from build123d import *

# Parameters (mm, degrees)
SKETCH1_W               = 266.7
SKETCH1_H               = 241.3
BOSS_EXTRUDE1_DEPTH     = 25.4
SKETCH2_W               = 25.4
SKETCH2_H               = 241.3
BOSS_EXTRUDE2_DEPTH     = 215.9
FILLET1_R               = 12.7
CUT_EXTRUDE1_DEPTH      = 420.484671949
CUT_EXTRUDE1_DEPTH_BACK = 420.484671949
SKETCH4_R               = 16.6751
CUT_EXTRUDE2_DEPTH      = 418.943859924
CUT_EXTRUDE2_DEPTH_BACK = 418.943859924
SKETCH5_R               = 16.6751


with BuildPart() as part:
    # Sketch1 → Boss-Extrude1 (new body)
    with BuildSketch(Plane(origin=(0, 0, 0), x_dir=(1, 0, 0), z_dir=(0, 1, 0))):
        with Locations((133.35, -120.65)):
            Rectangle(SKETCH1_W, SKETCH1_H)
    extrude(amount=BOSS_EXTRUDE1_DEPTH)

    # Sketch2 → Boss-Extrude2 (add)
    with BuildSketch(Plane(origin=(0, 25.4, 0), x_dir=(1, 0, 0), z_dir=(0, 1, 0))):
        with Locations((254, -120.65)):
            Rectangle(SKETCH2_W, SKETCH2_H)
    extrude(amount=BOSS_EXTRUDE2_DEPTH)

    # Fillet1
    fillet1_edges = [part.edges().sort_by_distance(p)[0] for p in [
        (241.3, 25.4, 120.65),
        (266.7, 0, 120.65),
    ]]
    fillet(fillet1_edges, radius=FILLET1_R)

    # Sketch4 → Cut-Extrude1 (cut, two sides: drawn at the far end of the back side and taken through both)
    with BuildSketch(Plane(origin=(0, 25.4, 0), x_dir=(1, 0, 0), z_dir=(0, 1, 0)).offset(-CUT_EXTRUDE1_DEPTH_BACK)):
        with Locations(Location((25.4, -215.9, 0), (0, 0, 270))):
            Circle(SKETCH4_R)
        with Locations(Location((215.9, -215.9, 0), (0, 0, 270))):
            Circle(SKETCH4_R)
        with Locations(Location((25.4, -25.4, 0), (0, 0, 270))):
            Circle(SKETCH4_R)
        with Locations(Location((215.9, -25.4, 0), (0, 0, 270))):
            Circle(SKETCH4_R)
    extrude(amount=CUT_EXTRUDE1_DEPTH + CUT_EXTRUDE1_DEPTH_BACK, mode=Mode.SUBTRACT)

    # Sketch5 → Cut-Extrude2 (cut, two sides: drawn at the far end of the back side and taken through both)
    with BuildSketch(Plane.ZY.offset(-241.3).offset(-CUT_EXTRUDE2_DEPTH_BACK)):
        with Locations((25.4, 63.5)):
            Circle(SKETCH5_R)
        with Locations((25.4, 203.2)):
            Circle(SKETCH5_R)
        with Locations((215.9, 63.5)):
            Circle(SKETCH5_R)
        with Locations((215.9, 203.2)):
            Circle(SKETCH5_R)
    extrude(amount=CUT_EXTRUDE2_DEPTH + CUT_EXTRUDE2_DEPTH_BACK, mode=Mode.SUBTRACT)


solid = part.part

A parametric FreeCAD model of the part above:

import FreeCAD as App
import Part
import Sketcher
from FreeCAD import Vector
Q = App.Units.Quantity


def edges_at(feature, points):
    """Names of the edges that pass closest to the given points."""
    edges = feature.Shape.Edges
    near = lambda p: min(range(len(edges)), key=lambda i: edges[i].distToShape(Part.Vertex(*p))[0])
    return sorted({f"Edge{near(p) + 1}" for p in points})


def add_polygon(sketch, points):
    """Adds a closed chain of lines whose ends are joined by coincident constraints."""
    first, n = sketch.GeometryCount, len(points)
    for a, b in zip(points, points[1:] + points[:1]):
        sketch.addGeometry(Part.LineSegment(App.Vector(*a, 0), App.Vector(*b, 0)), False)
    for i in range(n):
        sketch.addConstraint(Sketcher.Constraint("Coincident", first + i, 2, first + (i + 1) % n, 1))

doc = App.newDocument("Part")
body = doc.addObject("PartDesign::Body", "Body")

# Sketch on XZ plane
sketch1 = body.newObject("Sketcher::SketchObject", "Sketch")
sketch1.AttachmentSupport = (doc.getObject("XZ_Plane"), [""])
sketch1.MapMode = "FlatFace"
add_polygon(sketch1, [(0, 0), (0, 241.3), (266.7, 241.3), (266.7, 0)])  # lines 0-3
sketch1.addConstraint([
    Sketcher.Constraint("Vertical", 0),
    Sketcher.Constraint("Horizontal", 1),
    Sketcher.Constraint("Vertical", 2),
    Sketcher.Constraint("Horizontal", 3),
    Sketcher.Constraint("Coincident", 3, 2, -1, 1),
    Sketcher.Constraint("DistanceX", 1, 1, 1, 2, Q("10.5 in")),
    Sketcher.Constraint("DistanceY", 0, 1, 0, 2, Q("9.5 in")),
])
pad1 = body.newObject("PartDesign::Pad", "Pad")
pad1.Profile = sketch1
pad1.Length = Q("1 in")
pad1.Reversed = True

# Sketch on XZ plane
sketch2 = body.newObject("Sketcher::SketchObject", "Sketch001")
sketch2.AttachmentSupport = (doc.getObject("XZ_Plane"), [""])
sketch2.MapMode = "FlatFace"
sketch2.AttachmentOffset = App.Placement(Vector(0, 0, -1 * 25.4), App.Rotation())
add_polygon(sketch2, [(241.3, 0), (241.3, 241.3), (266.7, 241.3), (266.7, 0)])  # lines 0-3
sketch2.addConstraint([
    Sketcher.Constraint("Vertical", 0),
    Sketcher.Constraint("Horizontal", 1),
    Sketcher.Constraint("Vertical", 2),
    Sketcher.Constraint("Horizontal", 3),
    Sketcher.Constraint("PointOnObject", 2, 2, -1),
    Sketcher.Constraint("DistanceX", 1, 1, 1, 2, Q("1 in")),
    Sketcher.Constraint("DistanceY", 0, 1, 0, 2, Q("9.5 in")),
    Sketcher.Constraint("DistanceX", -1, 1, 0, 2, Q("9.5 in")),
])
pad2 = body.newObject("PartDesign::Pad", "Pad001")
pad2.Profile = sketch2
pad2.Length = Q("8.5 in")
pad2.Reversed = True
doc.recompute()

fillet = body.newObject("PartDesign::Fillet", "Fillet")
fillet.Base = (pad2, edges_at(pad2, [(241.3, 25.4, 120.65), (266.7, 0, 120.65)]))
fillet.Radius = Q("0.5 in")

# Sketch on XZ plane
sketch3 = body.newObject("Sketcher::SketchObject", "Sketch002")
sketch3.AttachmentSupport = (doc.getObject("XZ_Plane"), [""])
sketch3.MapMode = "FlatFace"
sketch3.AttachmentOffset = App.Placement(Vector(0, 0, -1 * 25.4), App.Rotation())
sketch3.addGeometry([
    Part.Circle(Vector(25.4, 215.9, 0), Vector(0, 0, 1), 16.6751),
    Part.Circle(Vector(215.9, 215.9, 0), Vector(0, 0, 1), 16.6751),
    Part.Circle(Vector(25.4, 25.4, 0), Vector(0, 0, 1), 16.6751),
    Part.Circle(Vector(215.9, 25.4, 0), Vector(0, 0, 1), 16.6751),
], False)
sketch3.addConstraint([
    Sketcher.Constraint("Equal", 0, 1),
    Sketcher.Constraint("Equal", 1, 2),
    Sketcher.Constraint("Equal", 2, 3),
    Sketcher.Constraint("Horizontal", 0, 3, 1, 3),
    Sketcher.Constraint("Horizontal", 2, 3, 3, 3),
    Sketcher.Constraint("Vertical", 0, 3, 2, 3),
    Sketcher.Constraint("Vertical", 1, 3, 3, 3),
    Sketcher.Constraint("Diameter", 0, Q("1.313 in")),
    Sketcher.Constraint("DistanceX", -1, 1, 0, 3, Q("1 in")),
    Sketcher.Constraint("DistanceY", -1, 1, 2, 3, Q("1 in")),
    Sketcher.Constraint("DistanceY", -1, 1, 0, 3, Q("8.5 in")),
    Sketcher.Constraint("DistanceX", -1, 1, 1, 3, Q("8.5 in")),
])
pocket1 = body.newObject("PartDesign::Pocket", "Pocket")
pocket1.Profile = sketch3
pocket1.Type = "ThroughAll"
pocket1.Midplane = True

# Sketch on YZ plane
sketch4 = body.newObject("Sketcher::SketchObject", "Sketch003")
sketch4.AttachmentSupport = (doc.getObject("YZ_Plane"), [""])
sketch4.MapMode = "FlatFace"
sketch4.AttachmentOffset = App.Placement(Vector(0, 0, 9.5 * 25.4), App.Rotation())
sketch4.addGeometry([
    Part.Circle(Vector(63.5, 25.4, 0), Vector(0, 0, 1), 16.6751),
    Part.Circle(Vector(203.2, 25.4, 0), Vector(0, 0, 1), 16.6751),
    Part.Circle(Vector(63.5, 215.9, 0), Vector(0, 0, 1), 16.6751),
    Part.Circle(Vector(203.2, 215.9, 0), Vector(0, 0, 1), 16.6751),
], False)
sketch4.addConstraint([
    Sketcher.Constraint("Equal", 0, 1),
    Sketcher.Constraint("Equal", 1, 2),
    Sketcher.Constraint("Equal", 2, 3),
    Sketcher.Constraint("Horizontal", 0, 3, 1, 3),
    Sketcher.Constraint("Horizontal", 2, 3, 3, 3),
    Sketcher.Constraint("Vertical", 0, 3, 2, 3),
    Sketcher.Constraint("Vertical", 1, 3, 3, 3),
    Sketcher.Constraint("Diameter", 0, Q("1.313 in")),
    Sketcher.Constraint("DistanceY", -1, 1, 0, 3, Q("1 in")),
    Sketcher.Constraint("DistanceX", -1, 1, 1, 3, Q("8 in")),
    Sketcher.Constraint("DistanceX", -1, 1, 0, 3, Q("2.5 in")),
    Sketcher.Constraint("DistanceY", -1, 1, 2, 3, Q("8.5 in")),
])
pocket2 = body.newObject("PartDesign::Pocket", "Pocket001")
pocket2.Profile = sketch4
pocket2.Type = "ThroughAll"
pocket2.Midplane = True

doc.recompute()
